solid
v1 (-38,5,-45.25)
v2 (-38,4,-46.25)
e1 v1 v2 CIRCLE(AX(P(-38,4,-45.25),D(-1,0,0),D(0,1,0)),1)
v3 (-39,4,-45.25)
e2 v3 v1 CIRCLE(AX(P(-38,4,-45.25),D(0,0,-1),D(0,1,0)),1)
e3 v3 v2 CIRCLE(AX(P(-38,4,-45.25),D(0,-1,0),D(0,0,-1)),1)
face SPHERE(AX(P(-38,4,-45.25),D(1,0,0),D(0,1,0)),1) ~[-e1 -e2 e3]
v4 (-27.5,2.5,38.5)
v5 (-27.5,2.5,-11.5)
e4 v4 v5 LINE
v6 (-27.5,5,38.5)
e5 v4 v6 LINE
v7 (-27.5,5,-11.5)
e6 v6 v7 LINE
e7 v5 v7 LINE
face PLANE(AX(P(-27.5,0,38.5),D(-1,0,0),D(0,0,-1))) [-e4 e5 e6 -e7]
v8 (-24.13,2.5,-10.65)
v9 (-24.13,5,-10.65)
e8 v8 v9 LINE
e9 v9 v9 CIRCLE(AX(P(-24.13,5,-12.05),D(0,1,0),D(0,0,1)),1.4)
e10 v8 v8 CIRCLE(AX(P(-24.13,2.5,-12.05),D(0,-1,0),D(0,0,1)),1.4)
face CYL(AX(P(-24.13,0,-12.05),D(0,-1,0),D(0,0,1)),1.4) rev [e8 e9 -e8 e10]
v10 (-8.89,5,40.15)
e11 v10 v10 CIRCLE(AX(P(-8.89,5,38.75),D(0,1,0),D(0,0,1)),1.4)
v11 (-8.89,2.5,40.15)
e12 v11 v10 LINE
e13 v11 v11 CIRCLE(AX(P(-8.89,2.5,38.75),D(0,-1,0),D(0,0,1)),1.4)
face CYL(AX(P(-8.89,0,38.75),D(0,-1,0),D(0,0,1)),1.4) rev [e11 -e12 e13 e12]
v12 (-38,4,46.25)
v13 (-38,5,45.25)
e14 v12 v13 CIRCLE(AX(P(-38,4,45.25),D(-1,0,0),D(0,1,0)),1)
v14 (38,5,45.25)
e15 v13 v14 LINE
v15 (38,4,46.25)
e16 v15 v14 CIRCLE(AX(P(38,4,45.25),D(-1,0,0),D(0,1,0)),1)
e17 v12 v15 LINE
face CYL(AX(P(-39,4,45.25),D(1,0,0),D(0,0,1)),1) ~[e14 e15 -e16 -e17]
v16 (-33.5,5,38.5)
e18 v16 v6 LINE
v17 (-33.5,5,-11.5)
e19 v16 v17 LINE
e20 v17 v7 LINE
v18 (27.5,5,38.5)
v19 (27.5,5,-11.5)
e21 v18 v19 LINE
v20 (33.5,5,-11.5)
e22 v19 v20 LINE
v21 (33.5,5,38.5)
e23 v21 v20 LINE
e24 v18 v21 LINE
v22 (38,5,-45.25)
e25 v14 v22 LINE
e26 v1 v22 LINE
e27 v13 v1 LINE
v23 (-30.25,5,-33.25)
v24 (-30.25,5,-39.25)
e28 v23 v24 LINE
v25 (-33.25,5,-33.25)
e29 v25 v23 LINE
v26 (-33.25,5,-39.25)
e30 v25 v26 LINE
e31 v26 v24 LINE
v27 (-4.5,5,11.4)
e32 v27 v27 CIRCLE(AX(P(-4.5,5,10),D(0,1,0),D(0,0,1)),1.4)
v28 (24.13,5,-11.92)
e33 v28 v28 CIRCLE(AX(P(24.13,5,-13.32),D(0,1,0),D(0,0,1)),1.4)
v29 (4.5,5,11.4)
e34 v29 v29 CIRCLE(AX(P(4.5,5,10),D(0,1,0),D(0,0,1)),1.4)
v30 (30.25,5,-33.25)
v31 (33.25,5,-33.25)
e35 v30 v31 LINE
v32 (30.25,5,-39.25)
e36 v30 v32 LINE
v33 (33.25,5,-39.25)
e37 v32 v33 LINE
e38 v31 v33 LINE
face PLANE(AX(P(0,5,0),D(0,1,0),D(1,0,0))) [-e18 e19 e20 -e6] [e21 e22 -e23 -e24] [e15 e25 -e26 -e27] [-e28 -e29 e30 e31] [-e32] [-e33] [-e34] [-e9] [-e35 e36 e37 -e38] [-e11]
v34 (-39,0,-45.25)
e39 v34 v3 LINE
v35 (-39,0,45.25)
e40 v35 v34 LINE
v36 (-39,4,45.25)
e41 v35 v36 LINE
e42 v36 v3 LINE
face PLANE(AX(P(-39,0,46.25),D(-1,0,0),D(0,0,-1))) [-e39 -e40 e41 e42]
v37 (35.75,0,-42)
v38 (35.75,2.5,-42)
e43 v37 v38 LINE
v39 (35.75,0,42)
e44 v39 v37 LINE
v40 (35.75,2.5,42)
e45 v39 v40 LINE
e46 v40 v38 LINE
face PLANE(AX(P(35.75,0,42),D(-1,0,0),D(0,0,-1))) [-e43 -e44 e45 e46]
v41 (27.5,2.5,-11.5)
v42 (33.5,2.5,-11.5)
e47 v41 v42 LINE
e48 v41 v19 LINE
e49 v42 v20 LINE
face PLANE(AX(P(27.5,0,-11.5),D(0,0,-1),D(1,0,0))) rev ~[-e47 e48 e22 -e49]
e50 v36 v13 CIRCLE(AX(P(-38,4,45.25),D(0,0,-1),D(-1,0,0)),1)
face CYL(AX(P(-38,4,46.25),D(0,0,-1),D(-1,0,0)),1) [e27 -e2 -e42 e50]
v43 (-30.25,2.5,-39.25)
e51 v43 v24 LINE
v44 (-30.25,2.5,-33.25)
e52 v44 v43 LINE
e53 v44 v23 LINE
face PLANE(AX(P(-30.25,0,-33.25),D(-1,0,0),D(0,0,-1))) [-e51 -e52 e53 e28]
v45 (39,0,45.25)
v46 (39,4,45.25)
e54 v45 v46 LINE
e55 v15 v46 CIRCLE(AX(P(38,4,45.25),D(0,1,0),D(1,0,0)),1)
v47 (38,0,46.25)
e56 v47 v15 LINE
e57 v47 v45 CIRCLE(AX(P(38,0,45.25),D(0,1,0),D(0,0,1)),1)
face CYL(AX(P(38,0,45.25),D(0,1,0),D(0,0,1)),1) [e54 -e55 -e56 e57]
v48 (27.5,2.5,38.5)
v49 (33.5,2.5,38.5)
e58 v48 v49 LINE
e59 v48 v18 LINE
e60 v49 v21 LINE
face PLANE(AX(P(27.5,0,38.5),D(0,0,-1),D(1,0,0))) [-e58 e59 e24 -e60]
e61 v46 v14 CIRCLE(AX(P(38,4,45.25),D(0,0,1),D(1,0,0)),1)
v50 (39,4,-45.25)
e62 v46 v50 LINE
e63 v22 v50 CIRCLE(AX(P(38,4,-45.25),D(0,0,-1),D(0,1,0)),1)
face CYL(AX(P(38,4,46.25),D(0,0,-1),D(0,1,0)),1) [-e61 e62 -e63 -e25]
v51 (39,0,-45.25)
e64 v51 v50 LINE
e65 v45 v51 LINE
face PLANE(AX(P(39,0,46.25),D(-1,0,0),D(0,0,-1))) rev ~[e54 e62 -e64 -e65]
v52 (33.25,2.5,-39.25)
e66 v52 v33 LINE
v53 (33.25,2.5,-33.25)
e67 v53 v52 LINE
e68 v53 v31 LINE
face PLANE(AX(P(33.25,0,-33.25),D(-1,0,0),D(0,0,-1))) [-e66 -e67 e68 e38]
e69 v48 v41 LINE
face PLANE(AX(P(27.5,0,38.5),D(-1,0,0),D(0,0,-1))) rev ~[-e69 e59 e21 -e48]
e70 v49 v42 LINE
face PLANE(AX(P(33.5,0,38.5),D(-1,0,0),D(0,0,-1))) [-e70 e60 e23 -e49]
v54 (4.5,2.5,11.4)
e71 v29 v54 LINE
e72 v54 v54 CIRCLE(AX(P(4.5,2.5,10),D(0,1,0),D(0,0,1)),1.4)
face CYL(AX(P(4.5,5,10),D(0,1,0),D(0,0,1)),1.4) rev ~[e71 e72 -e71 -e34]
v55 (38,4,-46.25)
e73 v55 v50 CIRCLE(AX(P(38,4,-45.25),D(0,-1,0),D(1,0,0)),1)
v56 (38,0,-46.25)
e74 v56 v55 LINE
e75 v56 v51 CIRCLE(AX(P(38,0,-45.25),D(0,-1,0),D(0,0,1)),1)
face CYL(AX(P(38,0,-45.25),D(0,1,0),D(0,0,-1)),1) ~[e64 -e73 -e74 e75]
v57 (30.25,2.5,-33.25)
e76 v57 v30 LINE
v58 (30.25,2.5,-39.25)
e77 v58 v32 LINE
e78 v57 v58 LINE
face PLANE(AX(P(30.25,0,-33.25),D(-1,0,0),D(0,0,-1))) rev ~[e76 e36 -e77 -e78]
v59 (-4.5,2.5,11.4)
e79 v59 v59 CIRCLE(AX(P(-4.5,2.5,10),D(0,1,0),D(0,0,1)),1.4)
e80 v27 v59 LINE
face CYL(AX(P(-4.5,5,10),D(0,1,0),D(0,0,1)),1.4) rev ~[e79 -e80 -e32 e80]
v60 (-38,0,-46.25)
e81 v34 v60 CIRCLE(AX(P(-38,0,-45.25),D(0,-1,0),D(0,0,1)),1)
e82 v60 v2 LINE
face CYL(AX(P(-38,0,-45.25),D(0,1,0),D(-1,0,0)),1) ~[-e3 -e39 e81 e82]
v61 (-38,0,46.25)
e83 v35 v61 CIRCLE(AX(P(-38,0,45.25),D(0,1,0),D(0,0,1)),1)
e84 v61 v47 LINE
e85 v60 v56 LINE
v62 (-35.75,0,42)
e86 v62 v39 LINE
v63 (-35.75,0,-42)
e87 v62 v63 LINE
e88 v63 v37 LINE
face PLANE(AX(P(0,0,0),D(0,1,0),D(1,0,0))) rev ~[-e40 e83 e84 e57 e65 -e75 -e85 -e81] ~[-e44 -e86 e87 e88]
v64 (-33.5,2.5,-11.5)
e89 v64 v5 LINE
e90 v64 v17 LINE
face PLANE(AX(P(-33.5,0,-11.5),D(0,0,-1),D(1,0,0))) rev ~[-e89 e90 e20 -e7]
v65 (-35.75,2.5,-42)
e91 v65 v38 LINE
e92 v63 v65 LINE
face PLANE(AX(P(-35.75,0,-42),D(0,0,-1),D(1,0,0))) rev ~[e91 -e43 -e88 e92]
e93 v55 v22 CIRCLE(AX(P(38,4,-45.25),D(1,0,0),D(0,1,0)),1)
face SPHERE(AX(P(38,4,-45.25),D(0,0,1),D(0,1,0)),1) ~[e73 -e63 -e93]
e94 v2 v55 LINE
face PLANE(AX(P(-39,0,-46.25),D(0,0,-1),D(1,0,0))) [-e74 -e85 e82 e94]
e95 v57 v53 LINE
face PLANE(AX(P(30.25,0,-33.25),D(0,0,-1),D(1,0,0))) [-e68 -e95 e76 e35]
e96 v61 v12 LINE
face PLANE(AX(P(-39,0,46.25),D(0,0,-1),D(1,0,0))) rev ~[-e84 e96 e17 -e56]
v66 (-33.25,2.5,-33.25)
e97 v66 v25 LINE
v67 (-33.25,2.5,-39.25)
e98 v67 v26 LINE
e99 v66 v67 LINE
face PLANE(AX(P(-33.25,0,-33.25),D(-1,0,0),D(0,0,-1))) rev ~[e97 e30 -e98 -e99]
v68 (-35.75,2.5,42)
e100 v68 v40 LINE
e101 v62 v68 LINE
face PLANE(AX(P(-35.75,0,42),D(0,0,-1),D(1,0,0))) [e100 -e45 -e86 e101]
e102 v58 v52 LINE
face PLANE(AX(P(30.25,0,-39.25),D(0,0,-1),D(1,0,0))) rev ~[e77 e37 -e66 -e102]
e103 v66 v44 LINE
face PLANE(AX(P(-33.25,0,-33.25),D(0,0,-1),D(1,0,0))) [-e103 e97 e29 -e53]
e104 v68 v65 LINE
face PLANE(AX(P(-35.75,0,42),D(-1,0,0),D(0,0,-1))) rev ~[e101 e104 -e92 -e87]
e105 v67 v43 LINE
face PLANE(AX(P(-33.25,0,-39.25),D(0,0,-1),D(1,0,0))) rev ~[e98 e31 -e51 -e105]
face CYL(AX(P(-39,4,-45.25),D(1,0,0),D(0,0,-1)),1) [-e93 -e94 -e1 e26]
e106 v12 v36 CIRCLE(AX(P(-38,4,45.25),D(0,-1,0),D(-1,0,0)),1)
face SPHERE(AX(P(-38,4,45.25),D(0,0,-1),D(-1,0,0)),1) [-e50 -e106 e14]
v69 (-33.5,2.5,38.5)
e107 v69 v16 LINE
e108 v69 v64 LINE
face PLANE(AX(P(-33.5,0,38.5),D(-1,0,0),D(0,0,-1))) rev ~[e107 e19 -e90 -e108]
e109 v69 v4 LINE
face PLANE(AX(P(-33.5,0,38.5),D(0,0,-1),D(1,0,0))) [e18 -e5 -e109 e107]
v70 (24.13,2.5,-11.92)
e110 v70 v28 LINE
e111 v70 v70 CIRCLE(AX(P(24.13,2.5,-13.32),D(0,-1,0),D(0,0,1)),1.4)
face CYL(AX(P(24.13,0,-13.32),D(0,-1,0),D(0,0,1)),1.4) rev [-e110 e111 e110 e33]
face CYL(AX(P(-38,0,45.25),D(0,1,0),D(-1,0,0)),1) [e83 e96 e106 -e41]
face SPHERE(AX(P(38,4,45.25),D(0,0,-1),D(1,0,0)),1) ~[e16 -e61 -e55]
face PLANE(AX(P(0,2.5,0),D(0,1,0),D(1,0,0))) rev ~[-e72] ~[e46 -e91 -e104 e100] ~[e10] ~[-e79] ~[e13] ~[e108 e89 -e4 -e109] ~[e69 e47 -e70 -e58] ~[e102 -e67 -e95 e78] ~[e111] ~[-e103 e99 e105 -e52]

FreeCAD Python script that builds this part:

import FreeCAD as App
import Part
import Sketcher
Q = App.Units.Quantity


def edges_at(feature, points):
    """Names of the edges that pass closest to the given points."""
    edges = feature.Shape.Edges
    near = lambda p: min(range(len(edges)), key=lambda i: edges[i].distToShape(Part.Vertex(*p))[0])
    return sorted({f"Edge{near(p) + 1}" for p in points})

doc = App.newDocument("Part")
params = doc.addObject("Spreadsheet::Sheet", "Params")
for row, (alias, value) in enumerate([
    ("sketch1_diameter", "2.8 mm"),
    ("sketch1_width", "78 mm"),
    ("sketch1_width2", "6 mm"),
    ("sketch1_width3", "3 mm"),
    ("sketch1_height", "50 mm"),
    ("pad1_length", "5 mm"),
    ("sketch2_height", "84 mm"),
    ("sketch2_width", "71.5 mm"),
    ("pocket1_length", "2.5 mm"),
    ("fillet_radius", "1 mm"),
    ("sketch3_diameter", "2.8 mm"),
    ("sketch4_diameter", "2.8 mm"),
], start=1):
    params.set(f"A{row}", alias)
    params.set(f"B{row}", "=" + value)
    params.setAlias(f"B{row}", alias)

body = doc.addObject("PartDesign::Body", "Body")

sketch1 = body.newObject("Sketcher::SketchObject", "Sketch")
sketch1.AttachmentSupport = (doc.getObject("XZ_Plane"), [""])
sketch1.MapMode = "FlatFace"
sketch1.addGeometry(Part.LineSegment(App.Vector(-39, -46.2, 0), App.Vector(-39, 46.2, 0)), False)
sketch1.addGeometry(Part.LineSegment(App.Vector(-39, 46.2, 0), App.Vector(39, 46.2, 0)), False)
sketch1.addGeometry(Part.LineSegment(App.Vector(39, 46.2, 0), App.Vector(39, -46.2, 0)), False)
sketch1.addGeometry(Part.LineSegment(App.Vector(39, -46.2, 0), App.Vector(-39, -46.2, 0)), False)
sketch1.addGeometry(Part.Circle(App.Vector(-8.9, 38.8, 0), App.Vector(0, 0, 1), 1.4), False)
sketch1.addGeometry(Part.LineSegment(App.Vector(-27.5, 38.5, 0), App.Vector(-33.5, 38.5, 0)), False)
sketch1.addGeometry(Part.LineSegment(App.Vector(-33.5, 38.5, 0), App.Vector(-33.5, -11.5, 0)), False)
sketch1.addGeometry(Part.LineSegment(App.Vector(-33.5, -11.5, 0), App.Vector(-27.5, -11.5, 0)), False)
sketch1.addGeometry(Part.LineSegment(App.Vector(-27.5, -11.5, 0), App.Vector(-27.5, 38.5, 0)), False)
sketch1.addGeometry(Part.LineSegment(App.Vector(33.5, 38.5, 0), App.Vector(27.5, 38.5, 0)), False)
sketch1.addGeometry(Part.LineSegment(App.Vector(27.5, 38.5, 0), App.Vector(27.5, -11.5, 0)), False)
sketch1.addGeometry(Part.LineSegment(App.Vector(27.5, -11.5, 0), App.Vector(33.5, -11.5, 0)), False)
sketch1.addGeometry(Part.LineSegment(App.Vector(33.5, -11.5, 0), App.Vector(33.5, 38.5, 0)), False)
sketch1.addGeometry(Part.Circle(App.Vector(-24.1, -12.1, 0), App.Vector(0, 0, 1), 1.4), False)
sketch1.addGeometry(Part.LineSegment(App.Vector(-30.2, -33.2, 0), App.Vector(-33.2, -33.2, 0)), False)
sketch1.addGeometry(Part.LineSegment(App.Vector(-33.2, -33.2, 0), App.Vector(-33.2, -39.2, 0)), False)
sketch1.addGeometry(Part.LineSegment(App.Vector(-33.2, -39.2, 0), App.Vector(-30.2, -39.2, 0)), False)
sketch1.addGeometry(Part.LineSegment(App.Vector(-30.2, -39.2, 0), App.Vector(-30.2, -33.2, 0)), False)
sketch1.addGeometry(Part.Circle(App.Vector(24.1, -13.3, 0), App.Vector(0, 0, 1), 1.4), False)
sketch1.addGeometry(Part.LineSegment(App.Vector(33.2, -33.2, 0), App.Vector(30.2, -33.2, 0)), False)
sketch1.addGeometry(Part.LineSegment(App.Vector(30.2, -33.2, 0), App.Vector(30.2, -39.2, 0)), False)
sketch1.addGeometry(Part.LineSegment(App.Vector(30.2, -39.2, 0), App.Vector(33.2, -39.2, 0)), False)
sketch1.addGeometry(Part.LineSegment(App.Vector(33.2, -39.2, 0), App.Vector(33.2, -33.2, 0)), False)
sketch1.addConstraint(Sketcher.Constraint("Coincident", 0, 2, 1, 1))
sketch1.addConstraint(Sketcher.Constraint("Coincident", 1, 2, 2, 1))
sketch1.addConstraint(Sketcher.Constraint("Coincident", 2, 2, 3, 1))
sketch1.addConstraint(Sketcher.Constraint("Coincident", 3, 2, 0, 1))
sketch1.addConstraint(Sketcher.Constraint("Coincident", 5, 2, 6, 1))
sketch1.addConstraint(Sketcher.Constraint("Coincident", 6, 2, 7, 1))
sketch1.addConstraint(Sketcher.Constraint("Coincident", 7, 2, 8, 1))
sketch1.addConstraint(Sketcher.Constraint("Coincident", 8, 2, 5, 1))
sketch1.addConstraint(Sketcher.Constraint("Coincident", 9, 2, 10, 1))
sketch1.addConstraint(Sketcher.Constraint("Coincident", 10, 2, 11, 1))
sketch1.addConstraint(Sketcher.Constraint("Coincident", 11, 2, 12, 1))
sketch1.addConstraint(Sketcher.Constraint("Coincident", 12, 2, 9, 1))
sketch1.addConstraint(Sketcher.Constraint("Coincident", 14, 2, 15, 1))
sketch1.addConstraint(Sketcher.Constraint("Coincident", 15, 2, 16, 1))
sketch1.addConstraint(Sketcher.Constraint("Coincident", 16, 2, 17, 1))
sketch1.addConstraint(Sketcher.Constraint("Coincident", 17, 2, 14, 1))
sketch1.addConstraint(Sketcher.Constraint("Coincident", 19, 2, 20, 1))
sketch1.addConstraint(Sketcher.Constraint("Coincident", 20, 2, 21, 1))
sketch1.addConstraint(Sketcher.Constraint("Coincident", 21, 2, 22, 1))
sketch1.addConstraint(Sketcher.Constraint("Coincident", 22, 2, 19, 1))
sketch1.addConstraint(Sketcher.Constraint("Vertical", 0))
sketch1.addConstraint(Sketcher.Constraint("Horizontal", 1))
sketch1.addConstraint(Sketcher.Constraint("Vertical", 2))
sketch1.addConstraint(Sketcher.Constraint("Horizontal", 3))
sketch1.addConstraint(Sketcher.Constraint("Horizontal", 5))
sketch1.addConstraint(Sketcher.Constraint("Vertical", 6))
sketch1.addConstraint(Sketcher.Constraint("Horizontal", 7))
sketch1.addConstraint(Sketcher.Constraint("Vertical", 8))
sketch1.addConstraint(Sketcher.Constraint("Horizontal", 9))
sketch1.addConstraint(Sketcher.Constraint("Vertical", 10))
sketch1.addConstraint(Sketcher.Constraint("Horizontal", 11))
sketch1.addConstraint(Sketcher.Constraint("Vertical", 12))
sketch1.addConstraint(Sketcher.Constraint("Horizontal", 14))
sketch1.addConstraint(Sketcher.Constraint("Vertical", 15))
sketch1.addConstraint(Sketcher.Constraint("Horizontal", 16))
sketch1.addConstraint(Sketcher.Constraint("Vertical", 17))
sketch1.addConstraint(Sketcher.Constraint("Horizontal", 19))
sketch1.addConstraint(Sketcher.Constraint("Vertical", 20))
sketch1.addConstraint(Sketcher.Constraint("Horizontal", 21))
sketch1.addConstraint(Sketcher.Constraint("Vertical", 22))
sketch1.addConstraint(Sketcher.Constraint("Equal", 4, 13))
sketch1.addConstraint(Sketcher.Constraint("Equal", 13, 18))
sketch1.addConstraint(Sketcher.Constraint("Symmetric", 0, 2, 2, 2, -1, 1))
sketch1.addConstraint(Sketcher.Constraint("Symmetric", 8, 2, 9, 2, -2))
sketch1.addConstraint(Sketcher.Constraint("Symmetric", 6, 2, 11, 2, -2))
sketch1.addConstraint(Sketcher.Constraint("Symmetric", 17, 2, 19, 2, -2))
sketch1.addConstraint(Sketcher.Constraint("Symmetric", 15, 2, 21, 2, -2))
sketch1.addConstraint(Sketcher.Constraint("Equal", 11, 15))
sketch1.addConstraint(Sketcher.Constraint("Diameter", 4, Q("2.8 mm")))
sketch1.addConstraint(Sketcher.Constraint("DistanceX", 1, 1, 1, 2, Q("78 mm")))
sketch1.addConstraint(Sketcher.Constraint("DistanceX", 5, 2, 5, 1, Q("6 mm")))
sketch1.addConstraint(Sketcher.Constraint("DistanceX", 14, 2, 14, 1, Q("3 mm")))
sketch1.addConstraint(Sketcher.Constraint("DistanceY", 6, 2, 6, 1, Q("50 mm")))
sketch1.addConstraint(Sketcher.Constraint("DistanceY", 0, 1, 0, 2, Q("92.5 mm")))
sketch1.addConstraint(Sketcher.Constraint("DistanceY", 2, 2, 4, 3, Q("85 mm")))
sketch1.addConstraint(Sketcher.Constraint("DistanceX", 8, 2, 9, 2, Q("55 mm")))
sketch1.addConstraint(Sketcher.Constraint("DistanceY", 3, 2, 14, 2, Q("13 mm")))
sketch1.addConstraint(Sketcher.Constraint("DistanceY", -1, 1, 5, 2, Q("38.5 mm")))
sketch1.addConstraint(Sketcher.Constraint("DistanceY", 13, 3, 4, 3, Q("50.8 mm")))
sketch1.addConstraint(Sketcher.Constraint("DistanceX", 4, 3, -1, 1, Q("8.89 mm")))
sketch1.addConstraint(Sketcher.Constraint("DistanceX", 13, 3, -1, 1, Q("24.13 mm")))
sketch1.addConstraint(Sketcher.Constraint("DistanceX", -1, 1, 18, 3, Q("24.13 mm")))
sketch1.addConstraint(Sketcher.Constraint("DistanceY", 18, 3, -1, 1, Q("13.32 mm")))
sketch1.addConstraint(Sketcher.Constraint("DistanceX", 14, 2, -1, 1, Q("33.25 mm")))
sketch1.setExpression("Constraints[48]", "Params.sketch1_diameter")
sketch1.setExpression("Constraints[49]", "Params.sketch1_width")
sketch1.setExpression("Constraints[50]", "Params.sketch1_width2")
sketch1.setExpression("Constraints[51]", "Params.sketch1_width3")
sketch1.setExpression("Constraints[52]", "Params.sketch1_height")
pad1 = body.newObject("PartDesign::Pad", "Pad")
pad1.Profile = sketch1
pad1.setExpression("Length", "Params.pad1_length")
pad1.Reversed = True

sketch2 = body.newObject("Sketcher::SketchObject", "Sketch001")
sketch2.AttachmentSupport = (doc.getObject("XZ_Plane"), [""])
sketch2.MapMode = "FlatFace"
sketch2.addGeometry(Part.LineSegment(App.Vector(-36, -42, 0), App.Vector(-36, 42, 0)), False)
sketch2.addGeometry(Part.LineSegment(App.Vector(-36, 42, 0), App.Vector(36, 42, 0)), False)
sketch2.addGeometry(Part.LineSegment(App.Vector(36, 42, 0), App.Vector(36, -42, 0)), False)
sketch2.addGeometry(Part.LineSegment(App.Vector(36, -42, 0), App.Vector(-36, -42, 0)), False)
sketch2.addConstraint(Sketcher.Constraint("Coincident", 0, 2, 1, 1))
sketch2.addConstraint(Sketcher.Constraint("Coincident", 1, 2, 2, 1))
sketch2.addConstraint(Sketcher.Constraint("Coincident", 2, 2, 3, 1))
sketch2.addConstraint(Sketcher.Constraint("Coincident", 3, 2, 0, 1))
sketch2.addConstraint(Sketcher.Constraint("Vertical", 0))
sketch2.addConstraint(Sketcher.Constraint("Horizontal", 1))
sketch2.addConstraint(Sketcher.Constraint("Vertical", 2))
sketch2.addConstraint(Sketcher.Constraint("Horizontal", 3))
sketch2.addConstraint(Sketcher.Constraint("Symmetric", 0, 2, 2, 2, -1, 1))
sketch2.addConstraint(Sketcher.Constraint("DistanceY", 0, 1, 0, 2, Q("84 mm")))
sketch2.addConstraint(Sketcher.Constraint("DistanceX", 1, 1, 1, 2, Q("71.5 mm")))
sketch2.setExpression("Constraints[9]", "Params.sketch2_height")
sketch2.setExpression("Constraints[10]", "Params.sketch2_width")
pocket1 = body.newObject("PartDesign::Pocket", "Pocket")
pocket1.Profile = sketch2
pocket1.setExpression("Length", "Params.pocket1_length")
doc.recompute()

fillet = body.newObject("PartDesign::Fillet", "Fillet")
fillet.Base = (pocket1, edges_at(pocket1, [
    (39, 5, 0),
    (0, 5, -46.25),
    (-39, 5, 0),
    (-39, 2.5, -46.25),
    (39, 2.5, -46.25),
    (39, 2.5, 46.25),
    (-39, 2.5, 46.25),
    (0, 5, 46.25),
]))
fillet.setExpression("Radius", "Params.fillet_radius")

sketch3 = body.newObject("Sketcher::SketchObject", "Sketch002")
sketch3.AttachmentSupport = (doc.getObject("XZ_Plane"), [""])
sketch3.MapMode = "FlatFace"
sketch3.AttachmentOffset = App.Placement(App.Vector(0, 0, -5), App.Rotation())
sketch3.addGeometry(Part.Circle(App.Vector(-4.5, 10, 0), App.Vector(0, 0, 1), 1.4), False)
sketch3.addConstraint(Sketcher.Constraint("Diameter", 0, Q("2.8 mm")))
sketch3.addConstraint(Sketcher.Constraint("DistanceY", -1, 1, 0, 3, Q("10 mm")))
sketch3.addConstraint(Sketcher.Constraint("DistanceX", 0, 3, -1, 1, Q("4.5 mm")))
sketch3.setExpression("Constraints[0]", "Params.sketch3_diameter")
pocket2 = body.newObject("PartDesign::Pocket", "Pocket001")
pocket2.Profile = sketch3
pocket2.Type = "UpToFirst"
pocket2.Reversed = True

sketch4 = body.newObject("Sketcher::SketchObject", "Sketch003")
sketch4.AttachmentSupport = (doc.getObject("XZ_Plane"), [""])
sketch4.MapMode = "FlatFace"
sketch4.AttachmentOffset = App.Placement(App.Vector(0, 0, -5), App.Rotation())
sketch4.addGeometry(Part.Circle(App.Vector(4.5, 10, 0), App.Vector(0, 0, 1), 1.4), False)
sketch4.addConstraint(Sketcher.Constraint("Diameter", 0, Q("2.8 mm")))
sketch4.addConstraint(Sketcher.Constraint("DistanceY", -1, 1, 0, 3, Q("10 mm")))
sketch4.addConstraint(Sketcher.Constraint("DistanceX", -1, 1, 0, 3, Q("4.5 mm")))
sketch4.setExpression("Constraints[0]", "Params.sketch4_diameter")
pocket3 = body.newObject("PartDesign::Pocket", "Pocket002")
pocket3.Profile = sketch4
pocket3.Type = "UpToFirst"
pocket3.Reversed = True

doc.recompute()
